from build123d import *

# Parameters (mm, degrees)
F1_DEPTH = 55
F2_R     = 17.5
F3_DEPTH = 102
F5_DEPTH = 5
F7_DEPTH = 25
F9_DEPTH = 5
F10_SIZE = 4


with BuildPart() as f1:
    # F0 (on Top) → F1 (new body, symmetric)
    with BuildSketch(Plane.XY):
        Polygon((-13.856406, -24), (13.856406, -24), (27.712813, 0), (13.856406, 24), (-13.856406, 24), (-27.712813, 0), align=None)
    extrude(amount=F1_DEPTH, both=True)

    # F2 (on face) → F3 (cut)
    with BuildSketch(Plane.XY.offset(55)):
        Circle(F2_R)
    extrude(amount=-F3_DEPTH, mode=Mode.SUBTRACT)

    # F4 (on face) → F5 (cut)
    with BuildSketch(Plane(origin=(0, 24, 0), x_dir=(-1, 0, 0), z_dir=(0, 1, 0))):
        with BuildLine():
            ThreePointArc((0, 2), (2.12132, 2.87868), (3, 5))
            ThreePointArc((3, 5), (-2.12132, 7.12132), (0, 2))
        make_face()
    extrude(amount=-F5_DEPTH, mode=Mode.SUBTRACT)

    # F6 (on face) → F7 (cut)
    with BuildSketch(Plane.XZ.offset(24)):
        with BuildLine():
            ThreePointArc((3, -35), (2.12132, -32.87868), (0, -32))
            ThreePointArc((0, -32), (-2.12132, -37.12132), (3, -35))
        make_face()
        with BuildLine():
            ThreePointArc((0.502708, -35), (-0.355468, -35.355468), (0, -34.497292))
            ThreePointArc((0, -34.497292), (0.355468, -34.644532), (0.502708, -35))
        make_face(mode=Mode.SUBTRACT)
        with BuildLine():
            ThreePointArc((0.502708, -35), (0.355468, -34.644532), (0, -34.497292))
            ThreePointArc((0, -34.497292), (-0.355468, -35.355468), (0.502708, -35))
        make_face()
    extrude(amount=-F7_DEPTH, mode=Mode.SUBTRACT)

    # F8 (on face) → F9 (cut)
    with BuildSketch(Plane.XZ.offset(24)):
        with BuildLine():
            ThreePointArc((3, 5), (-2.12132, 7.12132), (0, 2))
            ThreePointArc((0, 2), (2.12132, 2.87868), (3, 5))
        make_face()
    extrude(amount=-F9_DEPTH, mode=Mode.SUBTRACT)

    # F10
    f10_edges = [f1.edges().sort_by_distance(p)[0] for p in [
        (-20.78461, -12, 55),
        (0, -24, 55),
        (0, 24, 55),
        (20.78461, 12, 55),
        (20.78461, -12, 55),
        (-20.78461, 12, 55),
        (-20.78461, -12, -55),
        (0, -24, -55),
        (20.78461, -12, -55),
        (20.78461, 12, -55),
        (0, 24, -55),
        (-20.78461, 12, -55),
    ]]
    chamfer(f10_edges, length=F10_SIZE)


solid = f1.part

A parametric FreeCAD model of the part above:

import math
import FreeCAD as App
import Part
import Sketcher

V = App.Vector
Q = App.Units.Quantity


def edges_at(feature, points):
    """Names of the edges that pass closest to the given points."""
    edges = feature.Shape.Edges
    near = lambda p: min(range(len(edges)), key=lambda i: edges[i].distToShape(Part.Vertex(*p))[0])
    return sorted({f"Edge{near(p) + 1}" for p in points})

doc = App.newDocument("Part")
body = doc.addObject("PartDesign::Body", "Body")

# Sketch on XY plane
sketch1 = doc.addObject("Sketcher::SketchObject", "Sketch")
body.addObject(sketch1)
sketch1.AttachmentSupport = (doc.XY_Plane, [""])
sketch1.MapMode = "FlatFace"
sketch1.addGeometry([
    Part.LineSegment(V(-14, -24, 0), V(14, -24, 0)),  # 0
    Part.LineSegment(V(14, -24, 0), V(28, 0, 0)),  # 1
    Part.LineSegment(V(28, 0, 0), V(14, 24, 0)),  # 2
    Part.LineSegment(V(14, 24, 0), V(-14, 24, 0)),  # 3
    Part.LineSegment(V(-14, 24, 0), V(-28, 0, 0)),  # 4
    Part.LineSegment(V(-28, 0, 0), V(-14, -24, 0)),  # 5
], False)
sketch1.addConstraint([
    Sketcher.Constraint("Coincident", 0, 2, 1, 1),
    Sketcher.Constraint("Coincident", 1, 2, 2, 1),
    Sketcher.Constraint("Coincident", 2, 2, 3, 1),
    Sketcher.Constraint("Coincident", 3, 2, 4, 1),
    Sketcher.Constraint("Coincident", 4, 2, 5, 1),
    Sketcher.Constraint("Coincident", 5, 2, 0, 1),
    Sketcher.Constraint("Horizontal", 0),
    Sketcher.Constraint("Horizontal", 3),
    Sketcher.Constraint("Symmetric", 0, 2, 3, 2, -1, 1),
    Sketcher.Constraint("Symmetric", 1, 2, 4, 2, -1, 1),
    Sketcher.Constraint("PointOnObject", 1, 2, -1),
    Sketcher.Constraint("Parallel", 2, 5),
    Sketcher.Constraint("Vertical", 0, 2, 2, 2),
    Sketcher.Constraint("Angle", 1, Q("59.999999 deg")),
    Sketcher.Constraint("DistanceY", 0, 2, -1, 1, Q("24 mm")),
    Sketcher.Constraint("DistanceX", 0, 1, 0, 2, Q("27.712812 mm")),
])
pad1 = doc.addObject("PartDesign::Pad", "Pad")
body.addObject(pad1)
pad1.Profile = sketch1
pad1.Length = 110
pad1.Midplane = True

# Sketch on XY plane
sketch2 = doc.addObject("Sketcher::SketchObject", "Sketch001")
body.addObject(sketch2)
sketch2.AttachmentSupport = (doc.XY_Plane, [""])
sketch2.MapMode = "FlatFace"
sketch2.AttachmentOffset = App.Placement(V(0, 0, 55), App.Rotation())
sketch2.addGeometry(Part.Circle(V(0, 0, 0), V(0, 0, 1), 18), False)
sketch2.addConstraint([
    Sketcher.Constraint("Coincident", 0, 3, -1, 1),
    Sketcher.Constraint("Diameter", 0, Q("35 mm")),
])
pocket1 = doc.addObject("PartDesign::Pocket", "Pocket")
body.addObject(pocket1)
pocket1.Profile = sketch2
pocket1.Length = 102

# Sketch on XZ plane
sketch3 = doc.addObject("Sketcher::SketchObject", "Sketch002")
body.addObject(sketch3)
sketch3.AttachmentSupport = (doc.XZ_Plane, [""])
sketch3.MapMode = "FlatFace"
sketch3.AttachmentOffset = App.Placement(V(0, 0, -24), App.Rotation())
sketch3.addGeometry([
    Part.ArcOfCircle(Part.Circle(V(0, 5, 0), V(0, 0, 1), 3), math.radians(-180), math.radians(-90)),
    Part.ArcOfCircle(Part.Circle(V(0, 5, 0), V(0, 0, 1), 3), math.radians(-90), math.radians(180)),
], False)
sketch3.addConstraint([
    Sketcher.Constraint("Tangent", 0, 1, 1, 2),
    Sketcher.Constraint("Coincident", 1, 1, 0, 2),
    Sketcher.Constraint("PointOnObject", 0, 3, -2),
    Sketcher.Constraint("PointOnObject", 1, 1, -2),
    Sketcher.Constraint("Horizontal", 1, 3, 0, 1),
    Sketcher.Constraint("Radius", 0, Q("3.000001 mm")),
    Sketcher.Constraint("DistanceY", -1, 1, 0, 3, Q("5.000001 mm")),
])
pocket2 = doc.addObject("PartDesign::Pocket", "Pocket001")
body.addObject(pocket2)
pocket2.Profile = sketch3
pocket2.Length = 5
pocket2.Reversed = True

# Sketch on XZ plane
sketch4 = doc.addObject("Sketcher::SketchObject", "Sketch003")
body.addObject(sketch4)
sketch4.AttachmentSupport = (doc.XZ_Plane, [""])
sketch4.MapMode = "FlatFace"
sketch4.AttachmentOffset = App.Placement(V(0, 0, 24), App.Rotation())
sketch4.addGeometry([
    Part.ArcOfCircle(Part.Circle(V(0, -35, 0), V(0, 0, 1), 3), math.radians(0), math.radians(90)),
    Part.ArcOfCircle(Part.Circle(V(0, -35, 0), V(0, 0, 1), 3), math.radians(90), math.radians(360)),
], False)
sketch4.addConstraint([
    Sketcher.Constraint("Tangent", 0, 1, 1, 2),
    Sketcher.Constraint("Coincident", 1, 1, 0, 2),
    Sketcher.Constraint("PointOnObject", 0, 3, -2),
    Sketcher.Constraint("PointOnObject", 1, 1, -2),
    Sketcher.Constraint("Horizontal", 1, 3, 0, 1),
    Sketcher.Constraint("Radius", 0, Q("3.000001 mm")),
    Sketcher.Constraint("DistanceY", 0, 3, -1, 1, Q("35.000001 mm")),
])
pocket3 = doc.addObject("PartDesign::Pocket", "Pocket002")
body.addObject(pocket3)
pocket3.Profile = sketch4
pocket3.Length = 25

# Sketch on XZ plane
sketch5 = doc.addObject("Sketcher::SketchObject", "Sketch004")
body.addObject(sketch5)
sketch5.AttachmentSupport = (doc.XZ_Plane, [""])
sketch5.MapMode = "FlatFace"
sketch5.AttachmentOffset = App.Placement(V(0, 0, 24), App.Rotation())
sketch5.addGeometry([
    Part.ArcOfCircle(Part.Circle(V(0, 5, 0), V(0, 0, 1), 3), math.radians(0), math.radians(270)),
    Part.ArcOfCircle(Part.Circle(V(0, 5, 0), V(0, 0, 1), 3), math.radians(-90), math.radians(0)),
], False)
sketch5.addConstraint([
    Sketcher.Constraint("Tangent", 0, 1, 1, 2),
    Sketcher.Constraint("Coincident", 1, 1, 0, 2),
    Sketcher.Constraint("PointOnObject", 0, 3, -2),
    Sketcher.Constraint("PointOnObject", 1, 1, -2),
    Sketcher.Constraint("Horizontal", 1, 3, 0, 1),
    Sketcher.Constraint("Radius", 0, Q("3 mm")),
    Sketcher.Constraint("DistanceY", -1, 1, 0, 3, Q("5 mm")),
])
pocket4 = doc.addObject("PartDesign::Pocket", "Pocket003")
body.addObject(pocket4)
pocket4.Profile = sketch5
pocket4.Length = 5
doc.recompute()

chamfer = doc.addObject("PartDesign::Chamfer", "Chamfer")
body.addObject(chamfer)
chamfer.Base = (pocket4, edges_at(pocket4, [
    (-20.785, -12, 55),
    (0, -24, 55),
    (0, 24, 55),
    (20.785, 12, 55),
    (20.785, -12, 55),
    (-20.785, 12, 55),
    (-20.785, -12, -55),
    (0, -24, -55),
    (20.785, -12, -55),
    (20.785, 12, -55),
    (0, 24, -55),
    (-20.785, 12, -55),
]))
chamfer.Size = 4

doc.recompute()
